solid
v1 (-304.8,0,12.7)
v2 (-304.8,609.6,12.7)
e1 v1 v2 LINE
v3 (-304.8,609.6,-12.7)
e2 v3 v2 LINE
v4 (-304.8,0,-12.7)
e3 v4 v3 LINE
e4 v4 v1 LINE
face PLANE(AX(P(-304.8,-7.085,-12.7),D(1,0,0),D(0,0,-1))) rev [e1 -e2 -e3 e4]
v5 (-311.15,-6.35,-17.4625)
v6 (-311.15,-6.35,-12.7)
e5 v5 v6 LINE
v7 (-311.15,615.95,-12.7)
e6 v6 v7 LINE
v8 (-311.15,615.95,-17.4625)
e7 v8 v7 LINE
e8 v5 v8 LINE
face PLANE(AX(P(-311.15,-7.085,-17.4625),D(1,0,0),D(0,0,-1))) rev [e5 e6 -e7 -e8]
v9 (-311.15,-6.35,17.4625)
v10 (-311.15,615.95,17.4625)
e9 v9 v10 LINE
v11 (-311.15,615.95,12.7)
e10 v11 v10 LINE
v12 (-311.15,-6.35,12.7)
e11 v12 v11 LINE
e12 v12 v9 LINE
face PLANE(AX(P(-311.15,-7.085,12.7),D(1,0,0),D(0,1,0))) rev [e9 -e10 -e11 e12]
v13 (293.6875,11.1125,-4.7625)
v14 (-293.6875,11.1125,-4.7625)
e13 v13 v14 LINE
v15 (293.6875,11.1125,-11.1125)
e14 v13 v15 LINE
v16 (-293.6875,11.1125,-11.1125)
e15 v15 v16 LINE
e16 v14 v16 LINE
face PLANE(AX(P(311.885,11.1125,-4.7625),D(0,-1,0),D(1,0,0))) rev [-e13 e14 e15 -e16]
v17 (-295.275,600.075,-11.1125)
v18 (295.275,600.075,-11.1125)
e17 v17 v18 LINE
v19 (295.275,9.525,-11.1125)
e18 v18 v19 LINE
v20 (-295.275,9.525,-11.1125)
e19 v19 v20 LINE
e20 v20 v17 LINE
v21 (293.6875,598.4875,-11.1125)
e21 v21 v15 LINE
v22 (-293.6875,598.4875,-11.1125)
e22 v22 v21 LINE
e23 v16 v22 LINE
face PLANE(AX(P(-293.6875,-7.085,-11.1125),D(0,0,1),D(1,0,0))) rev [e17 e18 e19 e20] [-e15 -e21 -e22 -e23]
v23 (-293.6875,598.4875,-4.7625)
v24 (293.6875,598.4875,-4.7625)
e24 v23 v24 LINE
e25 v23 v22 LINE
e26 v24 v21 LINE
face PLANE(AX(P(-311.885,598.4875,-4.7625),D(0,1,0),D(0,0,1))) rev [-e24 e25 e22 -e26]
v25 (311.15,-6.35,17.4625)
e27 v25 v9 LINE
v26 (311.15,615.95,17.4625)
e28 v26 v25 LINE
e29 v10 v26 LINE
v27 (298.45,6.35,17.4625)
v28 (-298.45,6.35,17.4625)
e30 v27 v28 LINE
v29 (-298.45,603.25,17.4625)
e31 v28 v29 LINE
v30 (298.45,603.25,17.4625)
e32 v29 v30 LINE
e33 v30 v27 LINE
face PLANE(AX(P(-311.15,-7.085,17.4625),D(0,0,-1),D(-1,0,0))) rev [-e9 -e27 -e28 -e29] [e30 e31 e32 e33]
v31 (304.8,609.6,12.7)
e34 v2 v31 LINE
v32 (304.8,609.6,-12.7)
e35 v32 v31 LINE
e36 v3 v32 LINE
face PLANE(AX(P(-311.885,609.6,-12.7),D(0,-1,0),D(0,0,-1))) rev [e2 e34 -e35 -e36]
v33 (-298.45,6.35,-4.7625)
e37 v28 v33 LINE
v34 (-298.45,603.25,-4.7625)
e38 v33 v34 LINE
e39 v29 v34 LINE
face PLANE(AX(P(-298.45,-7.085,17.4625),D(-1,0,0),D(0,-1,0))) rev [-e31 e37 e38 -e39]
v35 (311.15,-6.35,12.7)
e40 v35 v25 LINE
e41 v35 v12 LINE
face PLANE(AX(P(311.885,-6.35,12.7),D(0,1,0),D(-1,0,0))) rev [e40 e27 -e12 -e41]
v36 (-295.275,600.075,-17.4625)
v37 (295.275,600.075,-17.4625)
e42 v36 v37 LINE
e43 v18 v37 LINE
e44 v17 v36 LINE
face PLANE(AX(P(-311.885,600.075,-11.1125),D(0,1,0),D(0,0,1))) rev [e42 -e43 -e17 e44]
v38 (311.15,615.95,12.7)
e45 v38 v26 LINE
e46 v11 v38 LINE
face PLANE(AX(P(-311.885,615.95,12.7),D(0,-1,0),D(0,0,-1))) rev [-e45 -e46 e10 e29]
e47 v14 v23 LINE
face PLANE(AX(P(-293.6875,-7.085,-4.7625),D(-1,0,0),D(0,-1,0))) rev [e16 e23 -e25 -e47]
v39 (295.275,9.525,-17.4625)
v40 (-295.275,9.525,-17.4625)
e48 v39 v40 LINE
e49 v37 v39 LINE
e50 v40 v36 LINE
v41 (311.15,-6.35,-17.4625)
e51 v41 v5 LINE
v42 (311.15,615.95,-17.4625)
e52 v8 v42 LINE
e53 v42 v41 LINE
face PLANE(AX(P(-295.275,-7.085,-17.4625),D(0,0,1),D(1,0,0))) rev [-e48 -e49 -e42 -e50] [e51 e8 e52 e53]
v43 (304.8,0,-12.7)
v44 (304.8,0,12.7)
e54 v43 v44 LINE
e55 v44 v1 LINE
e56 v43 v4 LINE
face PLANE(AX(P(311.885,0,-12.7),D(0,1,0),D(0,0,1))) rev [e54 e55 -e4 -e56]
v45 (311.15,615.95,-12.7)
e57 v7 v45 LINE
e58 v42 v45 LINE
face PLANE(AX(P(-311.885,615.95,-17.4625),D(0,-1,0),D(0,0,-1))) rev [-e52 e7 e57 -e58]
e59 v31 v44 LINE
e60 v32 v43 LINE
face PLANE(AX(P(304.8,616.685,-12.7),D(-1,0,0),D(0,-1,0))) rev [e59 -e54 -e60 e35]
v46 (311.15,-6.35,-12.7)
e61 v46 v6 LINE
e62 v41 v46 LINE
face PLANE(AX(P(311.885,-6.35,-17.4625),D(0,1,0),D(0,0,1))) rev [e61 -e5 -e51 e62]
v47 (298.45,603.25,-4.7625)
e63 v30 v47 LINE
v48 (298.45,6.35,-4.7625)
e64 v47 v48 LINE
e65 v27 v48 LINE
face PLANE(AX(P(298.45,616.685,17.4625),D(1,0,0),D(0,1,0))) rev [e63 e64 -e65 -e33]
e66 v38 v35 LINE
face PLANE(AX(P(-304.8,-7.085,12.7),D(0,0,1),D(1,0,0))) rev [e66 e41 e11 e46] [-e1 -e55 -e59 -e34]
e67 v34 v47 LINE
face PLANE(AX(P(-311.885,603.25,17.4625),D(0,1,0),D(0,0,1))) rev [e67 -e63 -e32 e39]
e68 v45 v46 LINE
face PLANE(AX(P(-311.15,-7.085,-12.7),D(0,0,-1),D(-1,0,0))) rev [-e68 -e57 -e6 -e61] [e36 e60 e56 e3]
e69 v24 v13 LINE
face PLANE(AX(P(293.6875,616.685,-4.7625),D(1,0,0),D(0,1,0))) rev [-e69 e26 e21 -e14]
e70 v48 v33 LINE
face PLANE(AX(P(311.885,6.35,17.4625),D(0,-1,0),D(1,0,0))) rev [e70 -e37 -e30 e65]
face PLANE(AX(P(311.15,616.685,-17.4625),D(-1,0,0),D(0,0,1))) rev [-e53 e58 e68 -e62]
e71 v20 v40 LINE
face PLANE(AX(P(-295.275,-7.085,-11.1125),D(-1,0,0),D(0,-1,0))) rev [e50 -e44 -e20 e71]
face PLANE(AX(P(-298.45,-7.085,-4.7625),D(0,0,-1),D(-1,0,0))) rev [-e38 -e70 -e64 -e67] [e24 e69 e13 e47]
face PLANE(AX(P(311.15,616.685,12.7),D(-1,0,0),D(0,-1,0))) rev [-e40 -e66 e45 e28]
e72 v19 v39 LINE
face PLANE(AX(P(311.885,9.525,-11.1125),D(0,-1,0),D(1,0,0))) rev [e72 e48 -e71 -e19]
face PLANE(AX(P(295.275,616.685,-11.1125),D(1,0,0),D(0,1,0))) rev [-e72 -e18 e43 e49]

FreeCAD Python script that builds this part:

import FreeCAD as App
import Part
import Sketcher

V = App.Vector
Q = App.Units.Quantity

doc = App.newDocument("Part")
body = doc.addObject("PartDesign::Body", "Body")

sketch1 = doc.addObject("Sketcher::SketchObject", "Sketch")
body.addObject(sketch1)
sketch1.AttachmentSupport = (doc.YZ_Plane, [""])
sketch1.MapMode = "FlatFace"
sketch1.addGeometry(Part.LineSegment(V(-6.3, 17.5, 0), V(-6.3, 12.7, 0)), False)
sketch1.addGeometry(Part.LineSegment(V(-6.3, 12.7, 0), V(0, 12.7, 0)), False)
sketch1.addGeometry(Part.LineSegment(V(0, 12.7, 0), V(0, -12.7, 0)), False)
sketch1.addGeometry(Part.LineSegment(V(0, -12.7, 0), V(-6.3, -12.7, 0)), False)
sketch1.addGeometry(Part.LineSegment(V(-6.3, -12.7, 0), V(-6.3, -17.5, 0)), False)
sketch1.addGeometry(Part.LineSegment(V(-6.3, -17.5, 0), V(9.5, -17.5, 0)), False)
sketch1.addGeometry(Part.LineSegment(V(9.5, -17.5, 0), V(9.5, -11.1, 0)), False)
sketch1.addGeometry(Part.LineSegment(V(9.5, -11.1, 0), V(11.1, -11.1, 0)), False)
sketch1.addGeometry(Part.LineSegment(V(11.1, -11.1, 0), V(11.1, -4.8, 0)), False)
sketch1.addGeometry(Part.LineSegment(V(11.1, -4.8, 0), V(6.3, -4.8, 0)), False)
sketch1.addGeometry(Part.LineSegment(V(6.3, -4.8, 0), V(6.3, 17.5, 0)), False)
sketch1.addGeometry(Part.LineSegment(V(6.3, 17.5, 0), V(-6.3, 17.5, 0)), False)
sketch1.addConstraint(Sketcher.Constraint("Coincident", 0, 2, 1, 1))
sketch1.addConstraint(Sketcher.Constraint("Coincident", 1, 2, 2, 1))
sketch1.addConstraint(Sketcher.Constraint("Coincident", 2, 2, 3, 1))
sketch1.addConstraint(Sketcher.Constraint("Coincident", 3, 2, 4, 1))
sketch1.addConstraint(Sketcher.Constraint("Coincident", 4, 2, 5, 1))
sketch1.addConstraint(Sketcher.Constraint("Coincident", 5, 2, 6, 1))
sketch1.addConstraint(Sketcher.Constraint("Coincident", 6, 2, 7, 1))
sketch1.addConstraint(Sketcher.Constraint("Coincident", 7, 2, 8, 1))
sketch1.addConstraint(Sketcher.Constraint("Coincident", 8, 2, 9, 1))
sketch1.addConstraint(Sketcher.Constraint("Coincident", 9, 2, 10, 1))
sketch1.addConstraint(Sketcher.Constraint("Coincident", 10, 2, 11, 1))
sketch1.addConstraint(Sketcher.Constraint("Coincident", 11, 2, 0, 1))
sketch1.addConstraint(Sketcher.Constraint("Vertical", 0))
sketch1.addConstraint(Sketcher.Constraint("Horizontal", 1))
sketch1.addConstraint(Sketcher.Constraint("Vertical", 2))
sketch1.addConstraint(Sketcher.Constraint("Horizontal", 3))
sketch1.addConstraint(Sketcher.Constraint("Vertical", 4))
sketch1.addConstraint(Sketcher.Constraint("Horizontal", 5))
sketch1.addConstraint(Sketcher.Constraint("Vertical", 6))
sketch1.addConstraint(Sketcher.Constraint("Horizontal", 7))
sketch1.addConstraint(Sketcher.Constraint("Vertical", 8))
sketch1.addConstraint(Sketcher.Constraint("Horizontal", 9))
sketch1.addConstraint(Sketcher.Constraint("Vertical", 10))
sketch1.addConstraint(Sketcher.Constraint("Horizontal", 11))
sketch1.addConstraint(Sketcher.Constraint("Symmetric", 1, 2, 2, 2, -1, 1))
sketch1.addConstraint(Sketcher.Constraint("Symmetric", 4, 2, 10, 2, -1, 1))
sketch1.addConstraint(Sketcher.Constraint("Vertical", 0, 2, 3, 2))
sketch1.addConstraint(Sketcher.Constraint("Equal", 9, 0))
sketch1.addConstraint(Sketcher.Constraint("Equal", 3, 6))
sketch1.addConstraint(Sketcher.Constraint("Equal", 6, 8))
sketch1.addConstraint(Sketcher.Constraint("DistanceY", 2, 2, 2, 1, Q("1 in")))
sketch1.addConstraint(Sketcher.Constraint("DistanceX", 11, 2, 11, 1, Q("0.5 in")))
sketch1.addConstraint(Sketcher.Constraint("DistanceX", 5, 1, 5, 2, Q("0.625 in")))
sketch1.addConstraint(Sketcher.Constraint("DistanceX", 7, 1, 7, 2, Q("0.0625 in")))

sketch2 = doc.addObject("Sketcher::SketchObject", "Sketch001")
body.addObject(sketch2)
sketch2.AttachmentSupport = (doc.XY_Plane, [""])
sketch2.MapMode = "FlatFace"
sketch2.addGeometry(Part.LineSegment(V(305, 610, 0), V(-305, 610, 0)), False)
sketch2.addGeometry(Part.LineSegment(V(-305, 610, 0), V(-305, 0, 0)), False)
sketch2.addGeometry(Part.LineSegment(V(-305, 0, 0), V(305, 0, 0)), False)
sketch2.addGeometry(Part.LineSegment(V(305, 0, 0), V(305, 610, 0)), False)
sketch2.addConstraint(Sketcher.Constraint("Coincident", 0, 2, 1, 1))
sketch2.addConstraint(Sketcher.Constraint("Coincident", 1, 2, 2, 1))
sketch2.addConstraint(Sketcher.Constraint("Coincident", 2, 2, 3, 1))
sketch2.addConstraint(Sketcher.Constraint("Coincident", 3, 2, 0, 1))
sketch2.addConstraint(Sketcher.Constraint("Horizontal", 0))
sketch2.addConstraint(Sketcher.Constraint("Vertical", 1))
sketch2.addConstraint(Sketcher.Constraint("Horizontal", 2))
sketch2.addConstraint(Sketcher.Constraint("Vertical", 3))
sketch2.addConstraint(Sketcher.Constraint("Symmetric", 1, 2, 2, 2, -1, 1))
sketch2.addConstraint(Sketcher.Constraint("Equal", 2, 1))
sketch2.addConstraint(Sketcher.Constraint("DistanceX", 0, 2, 0, 1, Q("24 in")))
doc.recompute()

additivepipe = doc.addObject("PartDesign::AdditivePipe", "AdditivePipe")
body.addObject(additivepipe)
additivepipe.Profile = sketch1
additivepipe.Spine = (sketch2, ["Edge1", "Edge2", "Edge3", "Edge4"])
additivepipe.Transition = "Right corner"

doc.recompute()
